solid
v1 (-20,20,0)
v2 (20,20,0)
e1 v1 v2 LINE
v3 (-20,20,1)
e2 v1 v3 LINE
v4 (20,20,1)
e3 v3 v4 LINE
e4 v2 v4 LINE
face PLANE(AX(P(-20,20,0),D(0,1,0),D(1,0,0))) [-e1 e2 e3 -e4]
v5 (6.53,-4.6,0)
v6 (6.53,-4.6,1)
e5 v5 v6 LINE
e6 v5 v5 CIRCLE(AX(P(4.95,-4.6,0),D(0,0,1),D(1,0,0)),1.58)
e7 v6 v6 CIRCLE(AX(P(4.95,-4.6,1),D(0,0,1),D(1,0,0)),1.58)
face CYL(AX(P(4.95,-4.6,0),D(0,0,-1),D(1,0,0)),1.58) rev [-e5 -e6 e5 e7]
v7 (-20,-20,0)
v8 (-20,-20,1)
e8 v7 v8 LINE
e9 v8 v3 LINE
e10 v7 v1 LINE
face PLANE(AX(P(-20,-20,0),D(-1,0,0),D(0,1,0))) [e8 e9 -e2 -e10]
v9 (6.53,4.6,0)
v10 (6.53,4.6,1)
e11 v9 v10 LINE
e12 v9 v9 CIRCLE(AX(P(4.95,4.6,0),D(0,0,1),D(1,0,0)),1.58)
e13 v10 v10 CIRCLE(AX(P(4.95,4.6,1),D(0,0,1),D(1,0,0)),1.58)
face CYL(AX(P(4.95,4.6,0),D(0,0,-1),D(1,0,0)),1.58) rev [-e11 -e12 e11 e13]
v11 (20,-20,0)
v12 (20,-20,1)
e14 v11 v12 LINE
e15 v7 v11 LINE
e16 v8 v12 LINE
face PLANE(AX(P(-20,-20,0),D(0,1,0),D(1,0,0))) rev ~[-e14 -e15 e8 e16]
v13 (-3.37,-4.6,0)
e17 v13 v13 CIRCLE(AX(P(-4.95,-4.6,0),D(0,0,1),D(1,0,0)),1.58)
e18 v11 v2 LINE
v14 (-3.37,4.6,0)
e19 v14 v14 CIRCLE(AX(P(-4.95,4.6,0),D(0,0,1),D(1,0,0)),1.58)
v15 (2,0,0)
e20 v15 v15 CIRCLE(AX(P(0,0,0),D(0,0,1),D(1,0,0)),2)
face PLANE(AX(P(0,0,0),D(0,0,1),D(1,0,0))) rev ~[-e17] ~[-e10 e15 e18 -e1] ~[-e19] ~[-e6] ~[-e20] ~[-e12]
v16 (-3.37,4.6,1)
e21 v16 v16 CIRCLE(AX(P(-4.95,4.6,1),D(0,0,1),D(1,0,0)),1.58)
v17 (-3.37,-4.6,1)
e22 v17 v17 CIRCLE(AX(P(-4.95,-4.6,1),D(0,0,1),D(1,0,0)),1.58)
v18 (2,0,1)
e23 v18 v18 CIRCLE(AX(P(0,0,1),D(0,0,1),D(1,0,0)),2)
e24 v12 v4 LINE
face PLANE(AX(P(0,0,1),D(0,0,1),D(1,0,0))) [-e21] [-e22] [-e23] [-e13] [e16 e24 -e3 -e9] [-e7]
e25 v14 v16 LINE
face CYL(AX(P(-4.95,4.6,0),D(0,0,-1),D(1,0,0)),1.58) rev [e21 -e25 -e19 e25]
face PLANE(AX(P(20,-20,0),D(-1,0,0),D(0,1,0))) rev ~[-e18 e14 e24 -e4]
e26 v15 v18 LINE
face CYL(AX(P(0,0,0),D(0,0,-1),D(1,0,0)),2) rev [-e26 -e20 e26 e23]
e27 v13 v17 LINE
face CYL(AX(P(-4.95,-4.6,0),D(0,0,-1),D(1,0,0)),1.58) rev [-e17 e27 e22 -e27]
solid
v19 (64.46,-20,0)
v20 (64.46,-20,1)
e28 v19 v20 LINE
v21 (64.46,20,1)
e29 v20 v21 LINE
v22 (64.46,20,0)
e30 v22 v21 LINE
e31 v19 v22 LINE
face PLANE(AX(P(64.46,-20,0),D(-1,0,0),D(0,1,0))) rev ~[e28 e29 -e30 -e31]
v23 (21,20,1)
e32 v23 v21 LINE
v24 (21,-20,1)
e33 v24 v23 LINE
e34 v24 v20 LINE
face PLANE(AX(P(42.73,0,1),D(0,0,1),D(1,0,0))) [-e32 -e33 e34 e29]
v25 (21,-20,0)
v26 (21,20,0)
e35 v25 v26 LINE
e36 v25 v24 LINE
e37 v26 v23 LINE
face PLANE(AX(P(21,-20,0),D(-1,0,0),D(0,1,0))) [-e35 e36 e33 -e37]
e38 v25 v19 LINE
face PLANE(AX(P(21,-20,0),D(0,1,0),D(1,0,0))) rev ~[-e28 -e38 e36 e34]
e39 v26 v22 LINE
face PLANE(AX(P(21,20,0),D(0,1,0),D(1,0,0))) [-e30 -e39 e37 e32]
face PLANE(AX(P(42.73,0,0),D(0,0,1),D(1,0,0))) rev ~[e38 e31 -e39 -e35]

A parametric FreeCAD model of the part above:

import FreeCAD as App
import Part
import Sketcher
Q = App.Units.Quantity


def add_polygon(sketch, points):
    """Adds a closed chain of lines whose ends are joined by coincident constraints."""
    first, n = sketch.GeometryCount, len(points)
    for a, b in zip(points, points[1:] + points[:1]):
        sketch.addGeometry(Part.LineSegment(App.Vector(*a, 0), App.Vector(*b, 0)), False)
    for i in range(n):
        sketch.addConstraint(Sketcher.Constraint("Coincident", first + i, 2, first + (i + 1) % n, 1))

doc = App.newDocument("Part")
body = doc.addObject("PartDesign::Body", "Body")

# Sketch on XY plane
sketch1 = body.newObject("Sketcher::SketchObject", "Sketch")
sketch1.AttachmentSupport = (doc.getObject("XY_Plane"), [""])
sketch1.MapMode = "FlatFace"
add_polygon(sketch1, [(21, 20), (21, -20), (64, -20), (64, 20)])  # lines 0-3
sketch1.addConstraint([
    Sketcher.Constraint("Vertical", 0),
    Sketcher.Constraint("Horizontal", 1),
    Sketcher.Constraint("Vertical", 2),
    Sketcher.Constraint("Horizontal", 3),
    Sketcher.Constraint("DistanceY", 0, 2, 0, 1, Q("40 mm")),
    Sketcher.Constraint("DistanceX", -1, 1, 0, 2, Q("21 mm")),
    Sketcher.Constraint("DistanceY", 0, 2, -1, 1, Q("20 mm")),
    Sketcher.Constraint("DistanceX", 1, 1, 1, 2, Q("43.46 mm")),
])
pad1 = body.newObject("PartDesign::Pad", "Pad")
pad1.Profile = sketch1
pad1.Length = 1
body2 = doc.addObject("PartDesign::Body", "Body001")

# Sketch on XY plane
sketch2 = body2.newObject("Sketcher::SketchObject", "Sketch001")
sketch2.AttachmentSupport = (doc.getObject("XY_Plane001"), [""])
sketch2.MapMode = "FlatFace"
sketch2.addGeometry(Part.Circle(App.Vector(0, 0, 0), App.Vector(0, 0, 1), 2), False)
sketch2.addConstraint([
    Sketcher.Constraint("Coincident", 0, 3, -1, 1),
    Sketcher.Constraint("Diameter", 0, Q("4 mm")),
])
pad2 = body2.newObject("PartDesign::Pad", "Pad001")
pad2.Profile = sketch2
pad2.Length = 1
body3 = doc.addObject("PartDesign::Body", "Body002")

# Sketch on XY plane
sketch3 = body3.newObject("Sketcher::SketchObject", "Sketch002")
sketch3.AttachmentSupport = (doc.getObject("XY_Plane002"), [""])
sketch3.MapMode = "FlatFace"
sketch3.addGeometry(Part.Circle(App.Vector(5, -4.6, 0), App.Vector(0, 0, 1), 1.6), False)
sketch3.addConstraint([
    Sketcher.Constraint("Diameter", 0, Q("3.16 mm")),
    Sketcher.Constraint("DistanceY", 0, 3, -1, 1, Q("4.6 mm")),
    Sketcher.Constraint("DistanceX", -1, 1, 0, 3, Q("4.95 mm")),
])
pad3 = body3.newObject("PartDesign::Pad", "Pad002")
pad3.Profile = sketch3
pad3.Length = 1
body4 = doc.addObject("PartDesign::Body", "Body003")

# Sketch on XY plane
sketch4 = body4.newObject("Sketcher::SketchObject", "Sketch003")
sketch4.AttachmentSupport = (doc.getObject("XY_Plane003"), [""])
sketch4.MapMode = "FlatFace"
sketch4.addGeometry(Part.Circle(App.Vector(-5, -4.6, 0), App.Vector(0, 0, 1), 1.6), False)
sketch4.addConstraint([
    Sketcher.Constraint("Diameter", 0, Q("3.16 mm")),
    Sketcher.Constraint("DistanceY", 0, 3, -1, 1, Q("4.6 mm")),
    Sketcher.Constraint("DistanceX", 0, 3, -1, 1, Q("4.95 mm")),
])
pad4 = body4.newObject("PartDesign::Pad", "Pad003")
pad4.Profile = sketch4
pad4.Length = 1
body5 = doc.addObject("PartDesign::Body", "Body004")

# Sketch on XY plane
sketch5 = body5.newObject("Sketcher::SketchObject", "Sketch004")
sketch5.AttachmentSupport = (doc.getObject("XY_Plane004"), [""])
sketch5.MapMode = "FlatFace"
sketch5.addGeometry(Part.Circle(App.Vector(-5, 4.6, 0), App.Vector(0, 0, 1), 1.6), False)
sketch5.addConstraint([
    Sketcher.Constraint("Diameter", 0, Q("3.16 mm")),
    Sketcher.Constraint("DistanceY", -1, 1, 0, 3, Q("4.6 mm")),
    Sketcher.Constraint("DistanceX", 0, 3, -1, 1, Q("4.95 mm")),
])
pad5 = body5.newObject("PartDesign::Pad", "Pad004")
pad5.Profile = sketch5
pad5.Length = 1
body6 = doc.addObject("PartDesign::Body", "Body005")

# Sketch on XY plane
sketch6 = body6.newObject("Sketcher::SketchObject", "Sketch005")
sketch6.AttachmentSupport = (doc.getObject("XY_Plane005"), [""])
sketch6.MapMode = "FlatFace"
sketch6.addGeometry(Part.Circle(App.Vector(5, 4.6, 0), App.Vector(0, 0, 1), 1.6), False)
sketch6.addConstraint([
    Sketcher.Constraint("Diameter", 0, Q("3.16 mm")),
    Sketcher.Constraint("DistanceY", -1, 1, 0, 3, Q("4.6 mm")),
    Sketcher.Constraint("DistanceX", -1, 1, 0, 3, Q("4.95 mm")),
])
pad6 = body6.newObject("PartDesign::Pad", "Pad005")
pad6.Profile = sketch6
pad6.Length = 1
body7 = doc.addObject("PartDesign::Body", "Body006")

# Sketch on XY plane
sketch7 = body7.newObject("Sketcher::SketchObject", "Sketch006")
sketch7.AttachmentSupport = (doc.getObject("XY_Plane006"), [""])
sketch7.MapMode = "FlatFace"
add_polygon(sketch7, [(-20, 20), (-20, -20), (20, -20), (20, 20)])  # lines 0-3
sketch7.addConstraint([
    Sketcher.Constraint("Vertical", 0),
    Sketcher.Constraint("Horizontal", 1),
    Sketcher.Constraint("Vertical", 2),
    Sketcher.Constraint("Horizontal", 3),
    Sketcher.Constraint("Symmetric", 0, 2, 2, 2, -1, 1),
    Sketcher.Constraint("Equal", 3, 0),
    Sketcher.Constraint("DistanceX", 1, 1, 1, 2, Q("40 mm")),
])
pad7 = body7.newObject("PartDesign::Pad", "Pad006")
pad7.Profile = sketch7
pad7.Length = 1
doc.recompute()

boolean = body7.newObject("PartDesign::Boolean", "Boolean")
boolean.Type = "Cut"
boolean.addObjects([body6])
doc.recompute()

boolean2 = body7.newObject("PartDesign::Boolean", "Boolean001")
boolean2.Type = "Cut"
boolean2.addObjects([body5])
doc.recompute()

boolean3 = body7.newObject("PartDesign::Boolean", "Boolean002")
boolean3.Type = "Cut"
boolean3.addObjects([body4])
doc.recompute()

boolean4 = body7.newObject("PartDesign::Boolean", "Boolean003")
boolean4.Type = "Cut"
boolean4.addObjects([body3])
doc.recompute()

boolean5 = body7.newObject("PartDesign::Boolean", "Boolean004")
boolean5.Type = "Cut"
boolean5.addObjects([body2])

doc.recompute()
